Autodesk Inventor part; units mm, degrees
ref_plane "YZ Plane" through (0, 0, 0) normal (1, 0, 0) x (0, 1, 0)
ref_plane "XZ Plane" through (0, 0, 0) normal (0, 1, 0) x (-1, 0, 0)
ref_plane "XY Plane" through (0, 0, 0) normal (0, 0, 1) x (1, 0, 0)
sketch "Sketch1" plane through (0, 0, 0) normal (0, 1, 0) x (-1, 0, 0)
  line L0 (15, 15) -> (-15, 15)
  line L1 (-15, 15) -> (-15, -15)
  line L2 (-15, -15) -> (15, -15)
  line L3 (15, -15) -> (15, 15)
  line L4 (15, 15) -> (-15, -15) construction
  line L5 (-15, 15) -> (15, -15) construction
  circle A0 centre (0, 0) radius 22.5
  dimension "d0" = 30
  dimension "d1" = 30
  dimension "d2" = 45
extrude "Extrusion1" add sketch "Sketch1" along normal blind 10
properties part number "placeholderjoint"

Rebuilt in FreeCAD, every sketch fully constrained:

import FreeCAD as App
import Part
import Sketcher

doc = App.newDocument("Part")
body = doc.addObject("PartDesign::Body", "Body")

# Sketch on XZ plane
sketch1 = body.newObject("Sketcher::SketchObject", "Sketch")
sketch1.AttachmentSupport = (doc.getObject("XZ_Plane"), [""])
sketch1.MapMode = "FlatFace"
sketch1.addGeometry([
    Part.Circle(App.Vector(0, 0, 0), App.Vector(0, 0, 1), 22),  # 0
    Part.LineSegment(App.Vector(15, 15, 0), App.Vector(-15, 15, 0)),  # 1
    Part.LineSegment(App.Vector(-15, 15, 0), App.Vector(-15, -15, 0)),  # 2
    Part.LineSegment(App.Vector(-15, -15, 0), App.Vector(15, -15, 0)),  # 3
    Part.LineSegment(App.Vector(15, -15, 0), App.Vector(15, 15, 0)),  # 4
], False)
sketch1.addConstraint([
    Sketcher.Constraint("Coincident", 1, 2, 2, 1),
    Sketcher.Constraint("Coincident", 2, 2, 3, 1),
    Sketcher.Constraint("Coincident", 3, 2, 4, 1),
    Sketcher.Constraint("Coincident", 4, 2, 1, 1),
    Sketcher.Constraint("Horizontal", 1),
    Sketcher.Constraint("Vertical", 2),
    Sketcher.Constraint("Horizontal", 3),
    Sketcher.Constraint("Vertical", 4),
    Sketcher.Constraint("Coincident", 0, 3, -1, 1),
    Sketcher.Constraint("Symmetric", 1, 2, 3, 2, -1, 1),
    Sketcher.Constraint("Equal", 3, 2),
    Sketcher.Constraint("Diameter", 0, 45.0),
    Sketcher.Constraint("DistanceX", 1, 2, 1, 1, 30.0),
])
pad1 = body.newObject("PartDesign::Pad", "Pad")
pad1.Profile = sketch1
pad1.Length = 10
pad1.Reversed = True

doc.recompute()
